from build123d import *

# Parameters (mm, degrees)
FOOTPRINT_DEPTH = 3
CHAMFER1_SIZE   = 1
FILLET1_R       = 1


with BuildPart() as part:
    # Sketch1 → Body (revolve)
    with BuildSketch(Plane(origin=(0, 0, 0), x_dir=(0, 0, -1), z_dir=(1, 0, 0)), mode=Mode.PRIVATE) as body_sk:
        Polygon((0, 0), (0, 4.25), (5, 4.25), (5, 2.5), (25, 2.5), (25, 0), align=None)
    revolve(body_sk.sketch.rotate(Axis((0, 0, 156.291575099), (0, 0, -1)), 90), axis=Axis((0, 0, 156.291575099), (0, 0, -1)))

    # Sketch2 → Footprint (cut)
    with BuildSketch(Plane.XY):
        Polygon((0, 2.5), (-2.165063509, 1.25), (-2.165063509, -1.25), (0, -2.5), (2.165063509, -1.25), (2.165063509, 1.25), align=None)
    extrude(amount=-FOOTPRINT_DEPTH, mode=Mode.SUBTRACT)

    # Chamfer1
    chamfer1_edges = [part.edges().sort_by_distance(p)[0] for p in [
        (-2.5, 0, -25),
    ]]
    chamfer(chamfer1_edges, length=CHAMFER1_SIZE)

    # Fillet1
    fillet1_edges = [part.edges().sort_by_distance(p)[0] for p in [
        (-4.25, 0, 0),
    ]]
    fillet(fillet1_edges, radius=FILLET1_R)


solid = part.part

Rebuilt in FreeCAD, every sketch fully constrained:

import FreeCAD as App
import Part
import Sketcher

V = App.Vector
Q = App.Units.Quantity


def edges_at(feature, points):
    """Names of the edges that pass closest to the given points."""
    edges = feature.Shape.Edges
    near = lambda p: min(range(len(edges)), key=lambda i: edges[i].distToShape(Part.Vertex(*p))[0])
    return sorted({f"Edge{near(p) + 1}" for p in points})


def add_polygon(sketch, points):
    """Adds a closed chain of lines whose ends are joined by coincident constraints."""
    first, n = sketch.GeometryCount, len(points)
    for a, b in zip(points, points[1:] + points[:1]):
        sketch.addGeometry(Part.LineSegment(App.Vector(*a, 0), App.Vector(*b, 0)), False)
    for i in range(n):
        sketch.addConstraint(Sketcher.Constraint("Coincident", first + i, 2, first + (i + 1) % n, 1))

doc = App.newDocument("Part")
body = doc.addObject("PartDesign::Body", "Body")

# Sketch on YZ plane
sketch1 = body.newObject("Sketcher::SketchObject", "Sketch")
sketch1.AttachmentSupport = (doc.getObject("YZ_Plane"), [""])
sketch1.MapMode = "FlatFace"
add_polygon(sketch1, [(4.25, 0), (0, 0), (0, -25), (2.5, -25), (2.5, -5), (4.25, -5)])  # lines 0-5
sketch1.addConstraint([
    Sketcher.Constraint("Horizontal", 0),
    Sketcher.Constraint("Vertical", 1),
    Sketcher.Constraint("Horizontal", 2),
    Sketcher.Constraint("Vertical", 3),
    Sketcher.Constraint("Horizontal", 4),
    Sketcher.Constraint("Vertical", 5),
    Sketcher.Constraint("Coincident", 0, 2, -1, 1),
    Sketcher.Constraint("DistanceY", 1, 2, 1, 1, Q("25 mm")),
    Sketcher.Constraint("DistanceY", 3, 1, 3, 2, Q("20 mm")),
    Sketcher.Constraint("DistanceX", 2, 1, 2, 2, Q("2.5 mm")),
    Sketcher.Constraint("DistanceX", 0, 2, 0, 1, Q("4.25 mm")),
])
revolution = body.newObject("PartDesign::Revolution", "Revolution")
revolution.Profile = sketch1
revolution.ReferenceAxis = (sketch1, ["V_Axis"])
revolution.Angle = 360

# Sketch on XY plane
sketch2 = body.newObject("Sketcher::SketchObject", "Sketch001")
sketch2.AttachmentSupport = (doc.getObject("XY_Plane"), [""])
sketch2.MapMode = "FlatFace"
add_polygon(sketch2, [(0, 2.5), (-2.165064, 1.25), (-2.165064, -1.25), (0, -2.5), (2.165064, -1.25), (2.165064, 1.25)])  # lines 0-5
sketch2.addConstraint([
    Sketcher.Constraint("Vertical", 1),
    Sketcher.Constraint("Vertical", 4),
    Sketcher.Constraint("Symmetric", 0, 2, 3, 2, -1, 1),
    Sketcher.Constraint("Symmetric", 2, 2, 5, 2, -1, 1),
    Sketcher.Constraint("PointOnObject", 2, 2, -2),
    Sketcher.Constraint("Parallel", 2, 5),
    Sketcher.Constraint("Horizontal", 1, 2, 3, 2),
    Sketcher.Constraint("Angle", 0, Q("-150 deg")),
    Sketcher.Constraint("DistanceY", 1, 2, 1, 1, Q("2.5 mm")),
    Sketcher.Constraint("DistanceY", 2, 2, 5, 2, Q("5 mm")),
])
pocket1 = body.newObject("PartDesign::Pocket", "Pocket")
pocket1.Profile = sketch2
pocket1.Length = 3
doc.recompute()

chamfer = body.newObject("PartDesign::Chamfer", "Chamfer")
chamfer.Base = (pocket1, edges_at(pocket1, [(-2.5, 0, -25)]))
chamfer.Size = 1
doc.recompute()

fillet = body.newObject("PartDesign::Fillet", "Fillet")
fillet.Base = (chamfer, edges_at(chamfer, [(-4.25, 0, 0)]))
fillet.Radius = 1

doc.recompute()
